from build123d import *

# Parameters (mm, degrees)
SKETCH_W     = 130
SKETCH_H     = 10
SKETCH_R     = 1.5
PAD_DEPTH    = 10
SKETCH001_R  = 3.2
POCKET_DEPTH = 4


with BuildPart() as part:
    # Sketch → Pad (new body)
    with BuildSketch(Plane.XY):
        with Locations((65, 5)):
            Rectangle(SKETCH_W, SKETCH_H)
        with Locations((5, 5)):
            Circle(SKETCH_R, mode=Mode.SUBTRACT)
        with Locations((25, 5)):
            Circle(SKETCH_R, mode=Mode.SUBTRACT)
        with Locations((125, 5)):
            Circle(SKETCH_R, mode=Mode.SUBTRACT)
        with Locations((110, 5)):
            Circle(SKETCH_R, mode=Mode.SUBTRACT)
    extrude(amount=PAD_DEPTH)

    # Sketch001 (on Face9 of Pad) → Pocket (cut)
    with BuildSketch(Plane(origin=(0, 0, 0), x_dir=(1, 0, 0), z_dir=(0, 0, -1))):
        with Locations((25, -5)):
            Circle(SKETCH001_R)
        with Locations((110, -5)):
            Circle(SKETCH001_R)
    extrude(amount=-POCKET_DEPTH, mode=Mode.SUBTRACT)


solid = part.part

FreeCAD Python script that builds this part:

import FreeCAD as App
import Part
import Sketcher
from FreeCAD import Vector


def add_polygon(sketch, points):
    """Adds a closed chain of lines whose ends are joined by coincident constraints."""
    first, n = sketch.GeometryCount, len(points)
    for a, b in zip(points, points[1:] + points[:1]):
        sketch.addGeometry(Part.LineSegment(App.Vector(*a, 0), App.Vector(*b, 0)), False)
    for i in range(n):
        sketch.addConstraint(Sketcher.Constraint("Coincident", first + i, 2, first + (i + 1) % n, 1))

doc = App.newDocument("Part")
params = doc.addObject("Spreadsheet::Sheet", "Params")
for row, (alias, value) in enumerate([
    ("sketch1_diameter", "3 mm"),
    ("sketch1_width", "130 mm"),
    ("sketch1_height", "10 mm"),
    ("pad1_length", "10 mm"),
    ("sketch2_diameter", "6.4 mm"),
    ("pocket1_length", "4 mm"),
], start=1):
    params.set(f"A{row}", alias)
    params.set(f"B{row}", "=" + value)
    params.setAlias(f"B{row}", alias)

body = doc.addObject("PartDesign::Body", "Body")

sketch1 = body.newObject("Sketcher::SketchObject", "Sketch")
sketch1.AttachmentSupport = (doc.getObject("XY_Plane"), [""])
sketch1.MapMode = "FlatFace"
add_polygon(sketch1, [(0, 10), (0, 0), (130, 0), (130, 10)])
sketch1.addGeometry(Part.Circle(Vector(5, 5, 0), Vector(0, 0, 1), 1.5), False)
sketch1.addGeometry(Part.Circle(Vector(25, 5, 0), Vector(0, 0, 1), 1.5), False)
sketch1.addGeometry(Part.Circle(Vector(110, 5, 0), Vector(0, 0, 1), 1.5), False)
sketch1.addGeometry(Part.Circle(Vector(125, 5, 0), Vector(0, 0, 1), 1.5), False)
sketch1.addConstraint([
    Sketcher.Constraint("Vertical", 0),
    Sketcher.Constraint("Horizontal", 1),
    Sketcher.Constraint("Vertical", 2),
    Sketcher.Constraint("Horizontal", 3),
    Sketcher.Constraint("Coincident", 0, 2, -1, 1),
    Sketcher.Constraint("Equal", 4, 5),
    Sketcher.Constraint("Equal", 5, 6),
    Sketcher.Constraint("Equal", 6, 7),
    Sketcher.Constraint("Horizontal", 4, 3, 5, 3),
    Sketcher.Constraint("Horizontal", 5, 3, 6, 3),
    Sketcher.Constraint("Horizontal", 6, 3, 7, 3),
    Sketcher.Constraint("Diameter", 4, 3.0),
    Sketcher.Constraint("DistanceX", 1, 1, 1, 2, 130.0),
    Sketcher.Constraint("DistanceY", 0, 2, 0, 1, 10.0),
    Sketcher.Constraint("DistanceX", -1, 1, 4, 3, 5.0),
    Sketcher.Constraint("DistanceY", -1, 1, 4, 3, 5.0),
    Sketcher.Constraint("DistanceX", -1, 1, 5, 3, 25.0),
    Sketcher.Constraint("DistanceX", -1, 1, 6, 3, 110.0),
    Sketcher.Constraint("DistanceX", -1, 1, 7, 3, 125.0),
])
sketch1.setExpression("Constraints[15]", "Params.sketch1_diameter")
sketch1.setExpression("Constraints[16]", "Params.sketch1_width")
sketch1.setExpression("Constraints[17]", "Params.sketch1_height")
pad1 = body.newObject("PartDesign::Pad", "Pad")
pad1.Profile = sketch1
pad1.setExpression("Length", "Params.pad1_length")

sketch2 = body.newObject("Sketcher::SketchObject", "Sketch001")
sketch2.AttachmentSupport = (doc.getObject("XY_Plane"), [""])
sketch2.MapMode = "FlatFace"
sketch2.addGeometry([
    Part.Circle(Vector(25, 5, 0), Vector(0, 0, 1), 3.2),
    Part.Circle(Vector(110, 5, 0), Vector(0, 0, 1), 3.2),
], False)
sketch2.addConstraint([
    Sketcher.Constraint("Equal", 0, 1),
    Sketcher.Constraint("Horizontal", 0, 3, 1, 3),
    Sketcher.Constraint("Diameter", 0, 6.4),
    Sketcher.Constraint("DistanceX", -1, 1, 0, 3, 25.0),
    Sketcher.Constraint("DistanceY", -1, 1, 0, 3, 5.0),
    Sketcher.Constraint("DistanceX", -1, 1, 1, 3, 110.0),
])
sketch2.setExpression("Constraints[2]", "Params.sketch2_diameter")
pocket1 = body.newObject("PartDesign::Pocket", "Pocket")
pocket1.Profile = sketch2
pocket1.setExpression("Length", "Params.pocket1_length")
pocket1.Reversed = True

doc.recompute()
